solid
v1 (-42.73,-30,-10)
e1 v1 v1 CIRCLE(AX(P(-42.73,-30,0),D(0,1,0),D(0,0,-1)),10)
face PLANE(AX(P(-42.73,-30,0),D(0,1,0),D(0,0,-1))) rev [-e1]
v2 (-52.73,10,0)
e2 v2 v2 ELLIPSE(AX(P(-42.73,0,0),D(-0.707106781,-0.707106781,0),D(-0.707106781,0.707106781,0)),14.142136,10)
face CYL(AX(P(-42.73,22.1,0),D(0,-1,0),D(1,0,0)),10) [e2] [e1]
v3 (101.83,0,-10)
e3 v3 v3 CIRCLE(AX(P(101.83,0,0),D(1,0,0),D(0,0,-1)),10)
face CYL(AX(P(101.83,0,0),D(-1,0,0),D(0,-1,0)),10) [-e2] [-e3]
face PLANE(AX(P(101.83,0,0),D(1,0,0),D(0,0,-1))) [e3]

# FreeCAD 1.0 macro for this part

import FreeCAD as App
import Part
import Sketcher
from FreeCAD import Vector
Q = App.Units.Quantity

doc = App.newDocument("Part")
body = doc.addObject("PartDesign::Body", "Body")

# Sketch on YZ plane
sketch1 = doc.addObject("Sketcher::SketchObject", "Sketch")
body.addObject(sketch1)
sketch1.AttachmentSupport = (doc.YZ_Plane, [""])
sketch1.MapMode = "FlatFace"
sketch1.AttachmentOffset = App.Placement(Vector(0, 0, 101.83), App.Rotation())
sketch1.addGeometry(Part.Circle(Vector(0, 0, 0), Vector(0, 0, 1), 10), False)
sketch1.addConstraint([
    Sketcher.Constraint("Coincident", 0, 3, -1, 1),
    Sketcher.Constraint("Diameter", 0, Q("20 mm")),
])

# Sketch on XY plane
sketch2 = doc.addObject("Sketcher::SketchObject", "Sketch001")
body.addObject(sketch2)
sketch2.AttachmentSupport = (doc.XY_Plane, [""])
sketch2.MapMode = "FlatFace"
sketch2.addGeometry([
    Part.LineSegment(Vector(102, 0, 0), Vector(-43, 0, 0)),
    Part.LineSegment(Vector(-43, 0, 0), Vector(-43, -30, 0)),
], False)
sketch2.addConstraint([
    Sketcher.Constraint("Coincident", 0, 2, 1, 1),
    Sketcher.Constraint("Horizontal", 0),
    Sketcher.Constraint("Vertical", 1),
    Sketcher.Constraint("PointOnObject", 0, 1, -1),
    Sketcher.Constraint("DistanceY", 1, 2, 1, 1, Q("30 mm")),
    Sketcher.Constraint("DistanceX", 0, 2, 0, 1, Q("144.56 mm")),
    Sketcher.Constraint("DistanceX", -1, 1, 0, 1, Q("101.83 mm")),
])
doc.recompute()

additivepipe = doc.addObject("PartDesign::AdditivePipe", "AdditivePipe")
body.addObject(additivepipe)
additivepipe.Profile = sketch1
additivepipe.Spine = (sketch2, ["Edge1", "Edge2"])
additivepipe.Transition = "Right corner"

doc.recompute()
